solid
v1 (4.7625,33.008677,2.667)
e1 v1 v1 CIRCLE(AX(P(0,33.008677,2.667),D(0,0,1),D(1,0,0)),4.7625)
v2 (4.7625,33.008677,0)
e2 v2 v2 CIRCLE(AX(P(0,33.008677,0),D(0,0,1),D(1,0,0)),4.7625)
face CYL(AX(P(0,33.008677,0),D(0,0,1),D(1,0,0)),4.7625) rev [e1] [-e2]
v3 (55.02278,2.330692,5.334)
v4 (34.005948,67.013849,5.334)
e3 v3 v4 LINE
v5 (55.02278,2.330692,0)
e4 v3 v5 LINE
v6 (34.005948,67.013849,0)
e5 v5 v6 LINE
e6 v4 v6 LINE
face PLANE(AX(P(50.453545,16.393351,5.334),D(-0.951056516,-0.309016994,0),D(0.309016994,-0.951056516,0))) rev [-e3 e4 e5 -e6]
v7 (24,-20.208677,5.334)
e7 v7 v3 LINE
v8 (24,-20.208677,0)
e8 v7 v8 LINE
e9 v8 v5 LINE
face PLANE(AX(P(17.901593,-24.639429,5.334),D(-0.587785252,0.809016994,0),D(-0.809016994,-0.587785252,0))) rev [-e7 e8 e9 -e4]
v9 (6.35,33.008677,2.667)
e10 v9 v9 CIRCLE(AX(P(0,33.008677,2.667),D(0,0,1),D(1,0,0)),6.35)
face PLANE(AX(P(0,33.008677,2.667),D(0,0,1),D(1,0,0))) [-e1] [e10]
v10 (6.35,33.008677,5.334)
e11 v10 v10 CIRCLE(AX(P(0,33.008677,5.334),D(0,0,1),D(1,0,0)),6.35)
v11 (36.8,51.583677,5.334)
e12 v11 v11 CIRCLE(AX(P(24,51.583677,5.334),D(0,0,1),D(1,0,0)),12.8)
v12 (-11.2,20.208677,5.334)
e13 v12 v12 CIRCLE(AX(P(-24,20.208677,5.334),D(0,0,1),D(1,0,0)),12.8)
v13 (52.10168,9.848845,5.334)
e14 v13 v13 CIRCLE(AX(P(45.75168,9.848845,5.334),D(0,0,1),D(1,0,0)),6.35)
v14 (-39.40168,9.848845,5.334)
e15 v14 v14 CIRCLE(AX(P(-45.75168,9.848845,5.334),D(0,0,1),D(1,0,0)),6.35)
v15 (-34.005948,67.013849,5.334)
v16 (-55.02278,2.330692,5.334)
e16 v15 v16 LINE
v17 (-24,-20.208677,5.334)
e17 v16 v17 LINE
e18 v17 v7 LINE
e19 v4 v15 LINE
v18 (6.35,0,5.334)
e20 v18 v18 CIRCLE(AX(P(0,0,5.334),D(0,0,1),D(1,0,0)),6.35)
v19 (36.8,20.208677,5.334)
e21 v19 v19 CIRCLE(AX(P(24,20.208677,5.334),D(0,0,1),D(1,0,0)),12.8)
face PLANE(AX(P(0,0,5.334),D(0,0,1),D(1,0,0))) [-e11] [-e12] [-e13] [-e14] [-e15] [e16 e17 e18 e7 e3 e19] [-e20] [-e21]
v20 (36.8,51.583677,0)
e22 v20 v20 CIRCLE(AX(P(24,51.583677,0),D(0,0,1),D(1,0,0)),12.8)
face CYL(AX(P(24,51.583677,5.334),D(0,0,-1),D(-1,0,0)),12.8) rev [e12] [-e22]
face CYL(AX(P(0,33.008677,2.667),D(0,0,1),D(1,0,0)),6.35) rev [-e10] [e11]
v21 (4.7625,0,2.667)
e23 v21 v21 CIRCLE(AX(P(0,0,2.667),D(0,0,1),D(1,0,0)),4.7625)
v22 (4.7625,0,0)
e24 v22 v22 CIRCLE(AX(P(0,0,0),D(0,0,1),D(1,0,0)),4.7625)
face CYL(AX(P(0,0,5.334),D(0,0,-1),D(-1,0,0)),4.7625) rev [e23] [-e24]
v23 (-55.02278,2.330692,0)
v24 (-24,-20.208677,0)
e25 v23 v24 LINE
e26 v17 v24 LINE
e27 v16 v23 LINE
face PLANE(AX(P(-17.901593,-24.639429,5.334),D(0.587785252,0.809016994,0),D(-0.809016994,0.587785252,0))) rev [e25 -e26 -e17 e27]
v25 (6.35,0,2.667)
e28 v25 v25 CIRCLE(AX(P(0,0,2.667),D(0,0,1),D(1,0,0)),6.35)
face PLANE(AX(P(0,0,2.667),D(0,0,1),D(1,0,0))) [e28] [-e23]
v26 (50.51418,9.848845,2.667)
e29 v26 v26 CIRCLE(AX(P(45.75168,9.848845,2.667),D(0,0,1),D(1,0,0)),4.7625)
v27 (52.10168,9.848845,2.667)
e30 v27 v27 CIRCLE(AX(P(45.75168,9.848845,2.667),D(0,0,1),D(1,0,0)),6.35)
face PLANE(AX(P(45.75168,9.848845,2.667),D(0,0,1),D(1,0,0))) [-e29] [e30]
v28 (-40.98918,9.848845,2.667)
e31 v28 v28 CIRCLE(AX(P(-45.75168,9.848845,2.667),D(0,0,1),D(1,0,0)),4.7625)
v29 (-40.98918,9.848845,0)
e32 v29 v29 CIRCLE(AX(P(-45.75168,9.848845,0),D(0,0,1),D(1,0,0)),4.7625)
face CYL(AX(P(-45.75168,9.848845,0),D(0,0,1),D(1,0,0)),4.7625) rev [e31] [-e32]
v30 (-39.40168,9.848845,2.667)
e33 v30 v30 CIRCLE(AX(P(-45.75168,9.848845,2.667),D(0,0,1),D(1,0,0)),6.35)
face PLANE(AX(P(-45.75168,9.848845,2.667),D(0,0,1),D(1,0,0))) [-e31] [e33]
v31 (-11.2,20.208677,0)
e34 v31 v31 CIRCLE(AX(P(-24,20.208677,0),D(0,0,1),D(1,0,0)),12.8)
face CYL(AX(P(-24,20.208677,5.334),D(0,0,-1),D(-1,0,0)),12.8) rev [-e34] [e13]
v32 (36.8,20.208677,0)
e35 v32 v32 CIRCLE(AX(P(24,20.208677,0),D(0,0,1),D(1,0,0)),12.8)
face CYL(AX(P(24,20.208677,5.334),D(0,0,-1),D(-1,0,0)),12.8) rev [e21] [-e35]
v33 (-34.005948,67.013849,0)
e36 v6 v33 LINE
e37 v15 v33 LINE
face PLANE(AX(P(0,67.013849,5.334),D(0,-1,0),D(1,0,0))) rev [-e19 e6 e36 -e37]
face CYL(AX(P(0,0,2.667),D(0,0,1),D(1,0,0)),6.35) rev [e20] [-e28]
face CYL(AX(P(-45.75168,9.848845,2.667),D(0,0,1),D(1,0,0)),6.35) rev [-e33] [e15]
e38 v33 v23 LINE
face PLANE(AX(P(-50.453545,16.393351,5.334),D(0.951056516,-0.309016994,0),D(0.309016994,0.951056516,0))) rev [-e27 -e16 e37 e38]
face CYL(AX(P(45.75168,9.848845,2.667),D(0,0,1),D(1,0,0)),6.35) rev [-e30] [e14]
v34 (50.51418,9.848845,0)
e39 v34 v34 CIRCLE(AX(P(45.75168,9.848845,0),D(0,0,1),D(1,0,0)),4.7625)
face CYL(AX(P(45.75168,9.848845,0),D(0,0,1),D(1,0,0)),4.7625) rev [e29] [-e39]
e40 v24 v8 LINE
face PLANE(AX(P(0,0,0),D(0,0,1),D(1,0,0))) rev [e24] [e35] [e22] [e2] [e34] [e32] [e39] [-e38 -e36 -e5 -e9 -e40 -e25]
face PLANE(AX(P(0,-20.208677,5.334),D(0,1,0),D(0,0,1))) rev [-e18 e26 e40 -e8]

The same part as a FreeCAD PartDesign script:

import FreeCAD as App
import Part
import Sketcher
Q = App.Units.Quantity

doc = App.newDocument("Part")
body = doc.addObject("PartDesign::Body", "Body")

# Sketch on XY plane
sketch1 = doc.addObject("Sketcher::SketchObject", "Sketch")
body.addObject(sketch1)
sketch1.AttachmentSupport = (doc.XY_Plane, [""])
sketch1.MapMode = "FlatFace"
sketch1.addGeometry(Part.LineSegment(App.Vector(-55, 2.3, 0), App.Vector(-24, -20.2, 0)), False)
sketch1.addGeometry(Part.LineSegment(App.Vector(-24, -20.2, 0), App.Vector(24, -20.2, 0)), False)
sketch1.addGeometry(Part.LineSegment(App.Vector(24, -20.2, 0), App.Vector(55, 2.3, 0)), False)
sketch1.addGeometry(Part.LineSegment(App.Vector(55, 2.3, 0), App.Vector(34, 67, 0)), False)
sketch1.addGeometry(Part.LineSegment(App.Vector(34, 67, 0), App.Vector(-34, 67, 0)), False)
sketch1.addGeometry(Part.LineSegment(App.Vector(-34, 67, 0), App.Vector(-55, 2.3, 0)), False)
sketch1.addGeometry(Part.Circle(App.Vector(-24, 20.2, 0), App.Vector(0, 0, 1), 12.8), False)
sketch1.addGeometry(Part.Circle(App.Vector(0, 0, 0), App.Vector(0, 0, 1), 4.8), False)
sketch1.addGeometry(Part.Circle(App.Vector(24, 20.2, 0), App.Vector(0, 0, 1), 12.8), False)
sketch1.addGeometry(Part.Circle(App.Vector(24, 51.6, 0), App.Vector(0, 0, 1), 12.8), False)
sketch1.addConstraint(Sketcher.Constraint("Coincident", 0, 2, 1, 1))
sketch1.addConstraint(Sketcher.Constraint("Coincident", 1, 2, 2, 1))
sketch1.addConstraint(Sketcher.Constraint("Coincident", 2, 2, 3, 1))
sketch1.addConstraint(Sketcher.Constraint("Coincident", 3, 2, 4, 1))
sketch1.addConstraint(Sketcher.Constraint("Coincident", 4, 2, 5, 1))
sketch1.addConstraint(Sketcher.Constraint("Coincident", 5, 2, 0, 1))
sketch1.addConstraint(Sketcher.Constraint("Horizontal", 1))
sketch1.addConstraint(Sketcher.Constraint("Horizontal", 4))
sketch1.addConstraint(Sketcher.Constraint("Coincident", 7, 3, -1, 1))
sketch1.addConstraint(Sketcher.Constraint("Equal", 6, 8))
sketch1.addConstraint(Sketcher.Constraint("Equal", 8, 9))
sketch1.addConstraint(Sketcher.Constraint("Symmetric", 6, 3, 8, 3, -2))
sketch1.addConstraint(Sketcher.Constraint("Symmetric", 2, 2, 5, 2, -2))
sketch1.addConstraint(Sketcher.Constraint("Vertical", 8, 3, 9, 3))
sketch1.addConstraint(Sketcher.Constraint("Vertical", 6, 3, 0, 2))
sketch1.addConstraint(Sketcher.Constraint("Vertical", 9, 3, 1, 2))
sketch1.addConstraint(Sketcher.Constraint("Equal", 3, 5))
sketch1.addConstraint(Sketcher.Constraint("Diameter", 7, Q("0.375 in")))
sketch1.addConstraint(Sketcher.Constraint("Angle", 0, Q("-36 deg")))
sketch1.addConstraint(Sketcher.Constraint("Angle", 3, Q("108 deg")))
sketch1.addConstraint(Sketcher.Constraint("Diameter", 6, Q("25.6 mm")))
sketch1.addConstraint(Sketcher.Constraint("DistanceX", 1, 1, 1, 2, Q("48 mm")))
sketch1.addConstraint(Sketcher.Constraint("DistanceY", 8, 3, 9, 3, Q("31.375 mm")))
sketch1.addConstraint(Sketcher.Constraint("DistanceX", 4, 2, 4, 1, Q("68.011896 mm")))
sketch1.addConstraint(Sketcher.Constraint("DistanceX", -1, 1, 2, 2, Q("55.02278 mm")))
sketch1.addConstraint(Sketcher.Constraint("DistanceY", -1, 1, 3, 2, Q("67.013849 mm")))
sketch1.addConstraint(Sketcher.Constraint("DistanceY", -1, 1, 6, 3, Q("20.208677 mm")))
pad1 = doc.addObject("PartDesign::Pad", "Pad")
body.addObject(pad1)
pad1.Profile = sketch1
pad1.Length = Q("0.21 in")

# Sketch on XY plane
sketch2 = doc.addObject("Sketcher::SketchObject", "Sketch001")
body.addObject(sketch2)
sketch2.AttachmentSupport = (doc.XY_Plane, [""])
sketch2.MapMode = "FlatFace"
sketch2.AttachmentOffset = App.Placement(App.Vector(0, 0, 0.21 * 25.4), App.Rotation())
sketch2.addGeometry(Part.Circle(App.Vector(0, 0, 0), App.Vector(0, 0, 1), 6.3), False)
sketch2.addGeometry(Part.Circle(App.Vector(0, 0, 0), App.Vector(0, 0, 1), 4.8), False)
sketch2.addGeometry(Part.Circle(App.Vector(45.8, 9.8, 0), App.Vector(0, 0, 1), 6.3), False)
sketch2.addGeometry(Part.Circle(App.Vector(45.8, 9.8, 0), App.Vector(0, 0, 1), 4.8), False)
sketch2.addGeometry(Part.Circle(App.Vector(0, 33, 0), App.Vector(0, 0, 1), 6.3), False)
sketch2.addGeometry(Part.Circle(App.Vector(0, 33, 0), App.Vector(0, 0, 1), 4.8), False)
sketch2.addGeometry(Part.Circle(App.Vector(-45.8, 9.8, 0), App.Vector(0, 0, 1), 6.3), False)
sketch2.addGeometry(Part.Circle(App.Vector(-45.8, 9.8, 0), App.Vector(0, 0, 1), 4.8), False)
sketch2.addConstraint(Sketcher.Constraint("Coincident", 0, 3, -1, 1))
sketch2.addConstraint(Sketcher.Constraint("Coincident", 1, 3, -1, 1))
sketch2.addConstraint(Sketcher.Constraint("Coincident", 3, 3, 2, 3))
sketch2.addConstraint(Sketcher.Constraint("Coincident", 5, 3, 4, 3))
sketch2.addConstraint(Sketcher.Constraint("Coincident", 7, 3, 6, 3))
sketch2.addConstraint(Sketcher.Constraint("Equal", 0, 2))
sketch2.addConstraint(Sketcher.Constraint("Equal", 1, 3))
sketch2.addConstraint(Sketcher.Constraint("Equal", 2, 4))
sketch2.addConstraint(Sketcher.Constraint("Equal", 3, 5))
sketch2.addConstraint(Sketcher.Constraint("Equal", 4, 6))
sketch2.addConstraint(Sketcher.Constraint("Equal", 5, 7))
sketch2.addConstraint(Sketcher.Constraint("Symmetric", 2, 3, 6, 3, -2))
sketch2.addConstraint(Sketcher.Constraint("PointOnObject", 4, 3, -2))
sketch2.addConstraint(Sketcher.Constraint("Diameter", 0, Q("0.5 in")))
sketch2.addConstraint(Sketcher.Constraint("Diameter", 1, Q("0.375 in")))
sketch2.addConstraint(Sketcher.Constraint("DistanceX", -1, 1, 2, 3, Q("45.75168 mm")))
sketch2.addConstraint(Sketcher.Constraint("DistanceY", 2, 3, 4, 3, Q("23.159832 mm")))
sketch2.addConstraint(Sketcher.Constraint("DistanceY", -1, 1, 2, 3, Q("9.848845 mm")))
pocket1 = doc.addObject("PartDesign::Pocket", "Pocket")
body.addObject(pocket1)
pocket1.Profile = sketch2
pocket1.Length = Q("0.105 in")

# Sketch on XY plane
sketch3 = doc.addObject("Sketcher::SketchObject", "Sketch002")
body.addObject(sketch3)
sketch3.AttachmentSupport = (doc.XY_Plane, [""])
sketch3.MapMode = "FlatFace"
sketch3.AttachmentOffset = App.Placement(App.Vector(0, 0, 0.21 * 25.4), App.Rotation())
sketch3.addGeometry(Part.Circle(App.Vector(-45.8, 9.8, 0), App.Vector(0, 0, 1), 4.8), False)
sketch3.addGeometry(Part.Circle(App.Vector(0, 33, 0), App.Vector(0, 0, 1), 4.8), False)
sketch3.addGeometry(Part.Circle(App.Vector(45.8, 9.8, 0), App.Vector(0, 0, 1), 4.8), False)
sketch3.addConstraint(Sketcher.Constraint("Equal", 0, 1))
sketch3.addConstraint(Sketcher.Constraint("Equal", 1, 2))
sketch3.addConstraint(Sketcher.Constraint("Symmetric", 0, 3, 2, 3, -2))
sketch3.addConstraint(Sketcher.Constraint("PointOnObject", 1, 3, -2))
sketch3.addConstraint(Sketcher.Constraint("Diameter", 0, Q("0.375 in")))
sketch3.addConstraint(Sketcher.Constraint("DistanceX", 0, 3, -1, 1, Q("45.75168 mm")))
sketch3.addConstraint(Sketcher.Constraint("DistanceY", 0, 3, 1, 3, Q("23.159832 mm")))
sketch3.addConstraint(Sketcher.Constraint("DistanceY", -1, 1, 0, 3, Q("9.848845 mm")))
pocket2 = doc.addObject("PartDesign::Pocket", "Pocket001")
body.addObject(pocket2)
pocket2.Profile = sketch3
pocket2.Type = "ThroughAll"

doc.recompute()
